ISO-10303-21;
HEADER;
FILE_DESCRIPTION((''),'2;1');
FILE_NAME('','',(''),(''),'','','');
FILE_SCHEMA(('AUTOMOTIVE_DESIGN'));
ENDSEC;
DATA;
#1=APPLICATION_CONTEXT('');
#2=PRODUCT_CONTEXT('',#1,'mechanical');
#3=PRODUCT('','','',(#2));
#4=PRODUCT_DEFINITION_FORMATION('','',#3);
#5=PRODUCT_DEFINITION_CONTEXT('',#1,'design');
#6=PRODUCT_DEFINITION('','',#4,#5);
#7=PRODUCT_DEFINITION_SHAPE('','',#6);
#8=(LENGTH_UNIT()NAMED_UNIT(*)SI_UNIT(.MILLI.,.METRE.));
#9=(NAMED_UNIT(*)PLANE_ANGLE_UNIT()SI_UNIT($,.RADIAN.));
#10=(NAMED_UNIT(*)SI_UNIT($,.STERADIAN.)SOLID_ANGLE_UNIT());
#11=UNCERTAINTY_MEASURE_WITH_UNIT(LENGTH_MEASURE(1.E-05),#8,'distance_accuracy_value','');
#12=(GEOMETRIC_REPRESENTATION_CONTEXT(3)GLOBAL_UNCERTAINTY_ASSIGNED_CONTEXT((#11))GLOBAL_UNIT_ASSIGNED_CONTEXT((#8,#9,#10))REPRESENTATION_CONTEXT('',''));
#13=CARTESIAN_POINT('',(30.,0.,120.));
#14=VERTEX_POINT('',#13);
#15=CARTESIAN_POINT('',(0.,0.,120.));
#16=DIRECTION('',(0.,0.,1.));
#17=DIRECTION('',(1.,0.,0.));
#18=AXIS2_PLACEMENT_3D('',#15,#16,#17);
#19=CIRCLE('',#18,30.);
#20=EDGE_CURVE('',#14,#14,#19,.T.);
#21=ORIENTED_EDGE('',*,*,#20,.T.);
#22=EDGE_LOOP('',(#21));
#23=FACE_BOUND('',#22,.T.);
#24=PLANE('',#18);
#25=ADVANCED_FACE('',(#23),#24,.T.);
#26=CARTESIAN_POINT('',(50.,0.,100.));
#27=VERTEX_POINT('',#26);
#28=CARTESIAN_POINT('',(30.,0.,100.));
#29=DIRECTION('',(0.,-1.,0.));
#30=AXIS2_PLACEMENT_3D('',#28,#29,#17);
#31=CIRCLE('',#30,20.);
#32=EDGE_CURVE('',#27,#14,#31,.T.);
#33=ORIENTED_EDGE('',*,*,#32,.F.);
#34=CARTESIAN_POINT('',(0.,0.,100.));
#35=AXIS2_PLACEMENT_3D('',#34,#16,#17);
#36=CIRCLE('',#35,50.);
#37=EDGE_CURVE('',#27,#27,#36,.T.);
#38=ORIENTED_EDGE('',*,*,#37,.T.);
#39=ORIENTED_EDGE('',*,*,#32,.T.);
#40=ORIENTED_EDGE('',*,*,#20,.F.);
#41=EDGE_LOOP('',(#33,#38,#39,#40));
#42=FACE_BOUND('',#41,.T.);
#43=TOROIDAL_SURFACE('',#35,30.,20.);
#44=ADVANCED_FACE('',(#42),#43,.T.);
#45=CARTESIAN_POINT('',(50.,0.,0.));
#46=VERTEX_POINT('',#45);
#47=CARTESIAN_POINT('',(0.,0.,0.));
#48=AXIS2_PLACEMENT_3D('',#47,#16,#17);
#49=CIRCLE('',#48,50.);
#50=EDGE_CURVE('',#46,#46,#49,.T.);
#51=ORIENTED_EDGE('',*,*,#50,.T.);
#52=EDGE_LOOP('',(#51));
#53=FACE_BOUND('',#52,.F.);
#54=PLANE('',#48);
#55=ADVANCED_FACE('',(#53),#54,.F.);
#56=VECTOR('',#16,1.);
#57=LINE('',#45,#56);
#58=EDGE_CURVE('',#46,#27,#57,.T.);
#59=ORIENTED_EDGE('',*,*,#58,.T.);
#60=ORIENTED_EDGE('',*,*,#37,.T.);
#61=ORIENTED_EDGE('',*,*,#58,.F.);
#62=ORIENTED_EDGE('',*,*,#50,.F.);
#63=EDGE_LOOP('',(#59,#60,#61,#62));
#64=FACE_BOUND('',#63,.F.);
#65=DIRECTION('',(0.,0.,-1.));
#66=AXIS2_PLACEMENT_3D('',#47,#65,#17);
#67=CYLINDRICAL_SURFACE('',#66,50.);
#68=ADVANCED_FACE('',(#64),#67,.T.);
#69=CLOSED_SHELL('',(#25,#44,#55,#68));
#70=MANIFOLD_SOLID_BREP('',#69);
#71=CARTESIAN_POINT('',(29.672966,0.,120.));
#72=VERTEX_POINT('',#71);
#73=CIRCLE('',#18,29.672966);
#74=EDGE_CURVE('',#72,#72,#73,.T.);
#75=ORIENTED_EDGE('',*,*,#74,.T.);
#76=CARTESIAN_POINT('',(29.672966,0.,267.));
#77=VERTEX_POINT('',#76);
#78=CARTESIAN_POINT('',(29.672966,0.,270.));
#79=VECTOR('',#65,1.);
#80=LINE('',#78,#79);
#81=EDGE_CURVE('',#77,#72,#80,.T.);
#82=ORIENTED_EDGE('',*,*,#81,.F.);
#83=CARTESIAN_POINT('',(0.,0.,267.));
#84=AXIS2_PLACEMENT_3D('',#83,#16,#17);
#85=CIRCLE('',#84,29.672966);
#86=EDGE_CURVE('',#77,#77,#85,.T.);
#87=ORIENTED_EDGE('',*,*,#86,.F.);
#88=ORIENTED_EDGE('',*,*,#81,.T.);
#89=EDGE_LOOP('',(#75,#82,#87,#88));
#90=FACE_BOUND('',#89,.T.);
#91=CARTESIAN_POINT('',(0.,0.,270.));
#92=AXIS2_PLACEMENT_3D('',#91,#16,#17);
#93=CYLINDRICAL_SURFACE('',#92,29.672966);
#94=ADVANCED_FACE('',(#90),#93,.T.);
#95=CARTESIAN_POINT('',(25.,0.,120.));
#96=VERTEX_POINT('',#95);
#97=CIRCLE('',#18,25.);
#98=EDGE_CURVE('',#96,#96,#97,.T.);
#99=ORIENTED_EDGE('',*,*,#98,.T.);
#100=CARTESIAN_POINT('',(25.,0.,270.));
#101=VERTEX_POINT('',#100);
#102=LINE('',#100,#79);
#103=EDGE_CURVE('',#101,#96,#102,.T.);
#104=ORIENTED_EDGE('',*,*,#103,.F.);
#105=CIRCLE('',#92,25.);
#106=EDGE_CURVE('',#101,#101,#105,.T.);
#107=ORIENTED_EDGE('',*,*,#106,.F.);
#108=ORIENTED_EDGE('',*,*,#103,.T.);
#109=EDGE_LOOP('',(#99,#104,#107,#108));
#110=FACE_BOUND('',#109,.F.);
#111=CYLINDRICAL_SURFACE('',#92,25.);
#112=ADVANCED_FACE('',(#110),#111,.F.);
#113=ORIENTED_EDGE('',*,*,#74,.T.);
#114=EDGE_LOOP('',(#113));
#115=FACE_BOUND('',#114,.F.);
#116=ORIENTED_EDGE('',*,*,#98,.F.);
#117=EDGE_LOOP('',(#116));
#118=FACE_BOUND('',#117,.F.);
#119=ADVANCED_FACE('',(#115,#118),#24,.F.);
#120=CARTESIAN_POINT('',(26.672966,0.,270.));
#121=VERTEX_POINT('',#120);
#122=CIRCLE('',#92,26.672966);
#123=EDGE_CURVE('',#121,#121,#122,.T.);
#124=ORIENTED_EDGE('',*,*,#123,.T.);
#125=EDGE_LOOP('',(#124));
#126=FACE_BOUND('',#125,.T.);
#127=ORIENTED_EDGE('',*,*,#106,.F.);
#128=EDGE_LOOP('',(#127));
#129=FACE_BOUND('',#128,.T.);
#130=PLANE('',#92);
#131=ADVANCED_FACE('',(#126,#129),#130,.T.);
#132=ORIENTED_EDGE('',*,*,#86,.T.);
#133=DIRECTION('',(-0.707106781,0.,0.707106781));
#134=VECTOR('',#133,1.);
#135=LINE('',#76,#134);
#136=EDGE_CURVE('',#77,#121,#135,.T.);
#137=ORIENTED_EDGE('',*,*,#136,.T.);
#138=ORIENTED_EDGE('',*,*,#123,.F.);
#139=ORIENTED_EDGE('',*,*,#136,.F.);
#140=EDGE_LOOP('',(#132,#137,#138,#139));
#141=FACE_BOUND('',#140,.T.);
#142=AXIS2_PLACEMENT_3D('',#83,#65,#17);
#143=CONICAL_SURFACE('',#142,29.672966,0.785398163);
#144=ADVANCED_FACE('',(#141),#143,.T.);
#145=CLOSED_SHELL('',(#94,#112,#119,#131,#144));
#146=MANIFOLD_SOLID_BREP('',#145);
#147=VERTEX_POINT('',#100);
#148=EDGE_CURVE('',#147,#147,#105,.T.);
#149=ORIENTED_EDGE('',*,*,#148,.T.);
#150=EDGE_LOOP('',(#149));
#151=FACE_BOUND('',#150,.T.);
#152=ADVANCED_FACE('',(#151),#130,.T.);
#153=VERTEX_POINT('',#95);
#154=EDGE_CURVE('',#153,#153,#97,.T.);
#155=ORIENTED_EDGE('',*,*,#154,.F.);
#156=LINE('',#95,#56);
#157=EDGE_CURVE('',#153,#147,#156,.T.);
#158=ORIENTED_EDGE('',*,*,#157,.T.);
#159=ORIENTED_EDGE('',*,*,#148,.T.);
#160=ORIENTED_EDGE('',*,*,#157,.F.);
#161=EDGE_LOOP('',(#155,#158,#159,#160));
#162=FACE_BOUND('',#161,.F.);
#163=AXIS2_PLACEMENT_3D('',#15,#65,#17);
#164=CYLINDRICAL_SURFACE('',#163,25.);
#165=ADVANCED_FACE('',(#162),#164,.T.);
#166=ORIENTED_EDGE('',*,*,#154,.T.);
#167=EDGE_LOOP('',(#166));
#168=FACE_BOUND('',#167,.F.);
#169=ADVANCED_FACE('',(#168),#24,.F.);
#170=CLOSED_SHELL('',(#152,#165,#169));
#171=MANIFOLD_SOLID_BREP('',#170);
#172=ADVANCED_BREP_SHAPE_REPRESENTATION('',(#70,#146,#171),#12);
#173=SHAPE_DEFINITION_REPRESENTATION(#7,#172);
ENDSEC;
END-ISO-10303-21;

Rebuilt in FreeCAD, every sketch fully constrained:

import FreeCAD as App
import Part
import Sketcher


def edges_at(feature, points):
    """Names of the edges that pass closest to the given points."""
    edges = feature.Shape.Edges
    near = lambda p: min(range(len(edges)), key=lambda i: edges[i].distToShape(Part.Vertex(*p))[0])
    return sorted({f"Edge{near(p) + 1}" for p in points})

doc = App.newDocument("Part")
body = doc.addObject("PartDesign::Body", "Body")

sketch1 = doc.addObject("Sketcher::SketchObject", "Sketch")
body.addObject(sketch1)
sketch1.AttachmentSupport = (doc.XY_Plane, [""])
sketch1.MapMode = "FlatFace"
sketch1.addGeometry(Part.Circle(App.Vector(0, 0, 0), App.Vector(0, 0, 1), 50), False)
sketch1.addConstraint(Sketcher.Constraint("Coincident", 0, 3, -1, 1))
sketch1.addConstraint(Sketcher.Constraint("Diameter", 0, 100.0))
pad1 = doc.addObject("PartDesign::Pad", "Pad")
body.addObject(pad1)
pad1.Profile = sketch1
pad1.Length = 120
doc.recompute()

fillet = doc.addObject("PartDesign::Fillet", "Fillet")
body.addObject(fillet)
fillet.Base = (pad1, edges_at(pad1, [(-50, 0, 120)]))
fillet.Radius = 20
body2 = doc.addObject("PartDesign::Body", "Body001")

sketch2 = doc.addObject("Sketcher::SketchObject", "Sketch001")
body2.addObject(sketch2)
sketch2.AttachmentSupport = (doc.getObject("XY_Plane001"), [""])
sketch2.MapMode = "FlatFace"
sketch2.AttachmentOffset = App.Placement(App.Vector(0, 0, 120), App.Rotation())
sketch2.addGeometry(Part.Circle(App.Vector(0, 0, 0), App.Vector(0, 0, 1), 25), False)
sketch2.addConstraint(Sketcher.Constraint("Coincident", 0, 3, -1, 1))
sketch2.addConstraint(Sketcher.Constraint("Diameter", 0, 50.0))
pad2 = doc.addObject("PartDesign::Pad", "Pad001")
body2.addObject(pad2)
pad2.Profile = sketch2
pad2.Length = 150
body3 = doc.addObject("PartDesign::Body", "Body002")

sketch3 = doc.addObject("Sketcher::SketchObject", "Sketch002")
body3.addObject(sketch3)
sketch3.AttachmentSupport = (doc.getObject("XY_Plane002"), [""])
sketch3.MapMode = "FlatFace"
sketch3.AttachmentOffset = App.Placement(App.Vector(0, 0, 270), App.Rotation())
sketch3.addGeometry(Part.Circle(App.Vector(0, 0, 0), App.Vector(0, 0, 1), 29.672966), False)
sketch3.addGeometry(Part.Circle(App.Vector(0, 0, 0), App.Vector(0, 0, 1), 25), False)
sketch3.addConstraint(Sketcher.Constraint("Coincident", 0, 3, -1, 1))
sketch3.addConstraint(Sketcher.Constraint("Coincident", 1, 3, -1, 1))
sketch3.addConstraint(Sketcher.Constraint("Diameter", 1, 50.0))
sketch3.addConstraint(Sketcher.Constraint("Diameter", 0, 59.345932))
pad3 = doc.addObject("PartDesign::Pad", "Pad002")
body3.addObject(pad3)
pad3.Profile = sketch3
pad3.Length = 150
pad3.Reversed = True
doc.recompute()

chamfer = doc.addObject("PartDesign::Chamfer", "Chamfer")
body3.addObject(chamfer)
chamfer.Base = (pad3, edges_at(pad3, [(-29.673, 0, 270)]))
chamfer.Size = 3

doc.recompute()
